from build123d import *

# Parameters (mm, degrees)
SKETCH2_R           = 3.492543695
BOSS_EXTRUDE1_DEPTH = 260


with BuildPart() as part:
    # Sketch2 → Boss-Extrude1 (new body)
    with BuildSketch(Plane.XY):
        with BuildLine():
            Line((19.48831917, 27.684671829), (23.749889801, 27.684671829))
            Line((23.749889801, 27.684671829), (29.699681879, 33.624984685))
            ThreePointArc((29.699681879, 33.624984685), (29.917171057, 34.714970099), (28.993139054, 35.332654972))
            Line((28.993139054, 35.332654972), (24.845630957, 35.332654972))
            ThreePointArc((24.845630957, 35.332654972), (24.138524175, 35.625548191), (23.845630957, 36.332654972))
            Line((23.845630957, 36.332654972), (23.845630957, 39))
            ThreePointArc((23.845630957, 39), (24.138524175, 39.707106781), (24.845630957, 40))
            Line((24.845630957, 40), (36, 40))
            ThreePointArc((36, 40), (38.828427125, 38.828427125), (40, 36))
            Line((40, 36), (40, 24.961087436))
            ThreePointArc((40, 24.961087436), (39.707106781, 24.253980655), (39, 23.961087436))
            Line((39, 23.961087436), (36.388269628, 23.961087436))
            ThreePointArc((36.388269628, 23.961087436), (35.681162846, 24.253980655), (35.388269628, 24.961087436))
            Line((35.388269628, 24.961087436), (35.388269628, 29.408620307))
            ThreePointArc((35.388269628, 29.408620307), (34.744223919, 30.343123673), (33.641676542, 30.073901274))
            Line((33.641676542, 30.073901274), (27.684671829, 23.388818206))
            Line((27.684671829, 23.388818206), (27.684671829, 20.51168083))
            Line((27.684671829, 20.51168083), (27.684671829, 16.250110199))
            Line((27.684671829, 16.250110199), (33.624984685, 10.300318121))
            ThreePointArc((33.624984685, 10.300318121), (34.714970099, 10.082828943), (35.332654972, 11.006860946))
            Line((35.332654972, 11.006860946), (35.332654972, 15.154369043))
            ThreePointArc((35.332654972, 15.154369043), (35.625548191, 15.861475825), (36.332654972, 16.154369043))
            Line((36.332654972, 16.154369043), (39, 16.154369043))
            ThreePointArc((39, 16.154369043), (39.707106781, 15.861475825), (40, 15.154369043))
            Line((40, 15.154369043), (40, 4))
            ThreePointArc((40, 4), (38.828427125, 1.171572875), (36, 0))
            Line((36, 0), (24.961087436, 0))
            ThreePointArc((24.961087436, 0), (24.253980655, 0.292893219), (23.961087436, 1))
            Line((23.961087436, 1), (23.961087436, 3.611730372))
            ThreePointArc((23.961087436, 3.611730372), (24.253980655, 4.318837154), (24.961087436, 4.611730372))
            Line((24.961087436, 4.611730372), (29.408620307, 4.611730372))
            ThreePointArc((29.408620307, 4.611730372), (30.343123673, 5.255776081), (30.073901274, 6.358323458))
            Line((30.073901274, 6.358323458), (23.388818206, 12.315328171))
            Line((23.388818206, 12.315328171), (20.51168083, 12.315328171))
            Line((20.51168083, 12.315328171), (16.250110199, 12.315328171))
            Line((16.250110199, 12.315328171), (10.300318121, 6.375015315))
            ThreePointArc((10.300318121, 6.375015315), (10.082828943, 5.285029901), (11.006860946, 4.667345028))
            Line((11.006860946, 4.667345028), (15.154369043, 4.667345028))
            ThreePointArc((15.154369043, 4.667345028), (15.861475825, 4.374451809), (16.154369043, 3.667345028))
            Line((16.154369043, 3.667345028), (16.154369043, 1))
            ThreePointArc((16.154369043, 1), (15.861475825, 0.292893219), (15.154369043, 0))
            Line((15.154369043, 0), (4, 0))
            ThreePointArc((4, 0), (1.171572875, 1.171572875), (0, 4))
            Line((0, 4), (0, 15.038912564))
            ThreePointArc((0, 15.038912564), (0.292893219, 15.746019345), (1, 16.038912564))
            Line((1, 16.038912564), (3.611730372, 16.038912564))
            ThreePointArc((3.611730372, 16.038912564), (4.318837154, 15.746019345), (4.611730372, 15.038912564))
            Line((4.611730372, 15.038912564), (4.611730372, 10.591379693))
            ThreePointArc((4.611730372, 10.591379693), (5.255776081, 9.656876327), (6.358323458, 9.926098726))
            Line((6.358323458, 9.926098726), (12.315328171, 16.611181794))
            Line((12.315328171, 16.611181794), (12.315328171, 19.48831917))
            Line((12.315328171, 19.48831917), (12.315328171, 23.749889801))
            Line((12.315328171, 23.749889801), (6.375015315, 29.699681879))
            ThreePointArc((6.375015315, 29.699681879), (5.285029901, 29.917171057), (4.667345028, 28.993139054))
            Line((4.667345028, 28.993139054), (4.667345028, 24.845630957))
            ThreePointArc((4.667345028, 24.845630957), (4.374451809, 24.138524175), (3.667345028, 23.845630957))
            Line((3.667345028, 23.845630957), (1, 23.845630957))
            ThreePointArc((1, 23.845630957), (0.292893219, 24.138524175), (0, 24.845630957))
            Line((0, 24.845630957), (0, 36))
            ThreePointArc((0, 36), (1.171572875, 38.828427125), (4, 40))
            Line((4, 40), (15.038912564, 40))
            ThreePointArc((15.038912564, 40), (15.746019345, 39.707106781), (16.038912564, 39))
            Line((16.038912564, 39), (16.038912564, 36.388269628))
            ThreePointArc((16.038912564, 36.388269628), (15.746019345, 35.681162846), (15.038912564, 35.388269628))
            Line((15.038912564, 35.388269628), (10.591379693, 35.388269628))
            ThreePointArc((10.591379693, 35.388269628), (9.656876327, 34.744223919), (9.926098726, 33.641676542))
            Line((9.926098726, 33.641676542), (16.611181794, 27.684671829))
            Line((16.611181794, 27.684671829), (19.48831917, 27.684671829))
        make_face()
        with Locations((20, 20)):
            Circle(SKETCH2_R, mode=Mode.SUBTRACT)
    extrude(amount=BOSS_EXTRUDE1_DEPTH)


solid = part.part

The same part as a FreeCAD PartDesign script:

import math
import FreeCAD as App
import Part
import Sketcher

doc = App.newDocument("Part")
params = doc.addObject("Spreadsheet::Sheet", "Params")
for row, (alias, value) in enumerate([
    ("sketch1_radius", "1 mm"),
    ("sketch1_radius2", "4 mm"),
    ("pad1_length", "260 mm"),
], start=1):
    params.set(f"A{row}", alias)
    params.set(f"B{row}", "=" + value)
    params.setAlias(f"B{row}", alias)

body = doc.addObject("PartDesign::Body", "Body")

# Sketch on XY plane
sketch1 = doc.addObject("Sketcher::SketchObject", "Sketch")
body.addObject(sketch1)
sketch1.AttachmentSupport = (doc.XY_Plane, [""])
sketch1.MapMode = "FlatFace"
sketch1.addGeometry(Part.LineSegment(App.Vector(29.7, 33.6, 0), App.Vector(23.7, 27.7, 0)), False)
sketch1.addGeometry(Part.LineSegment(App.Vector(23.7, 27.7, 0), App.Vector(16.6, 27.7, 0)), False)
sketch1.addGeometry(Part.LineSegment(App.Vector(16.6, 27.7, 0), App.Vector(9.9, 33.6, 0)), False)
sketch1.addGeometry(Part.ArcOfCircle(Part.Circle(App.Vector(10.6, 34.4, 0), App.Vector(0, 0, 1), 1), math.radians(90), math.radians(228)), False)
sketch1.addGeometry(Part.LineSegment(App.Vector(10.6, 35.4, 0), App.Vector(15, 35.4, 0)), False)
sketch1.addGeometry(Part.ArcOfCircle(Part.Circle(App.Vector(15, 36.4, 0), App.Vector(0, 0, 1), 1), math.radians(-90), math.radians(0)), False)
sketch1.addGeometry(Part.LineSegment(App.Vector(16, 36.4, 0), App.Vector(16, 39, 0)), False)
sketch1.addGeometry(Part.ArcOfCircle(Part.Circle(App.Vector(15, 39, 0), App.Vector(0, 0, 1), 1), math.radians(0), math.radians(90)), False)
sketch1.addGeometry(Part.LineSegment(App.Vector(15, 40, 0), App.Vector(4, 40, 0)), False)
sketch1.addGeometry(Part.ArcOfCircle(Part.Circle(App.Vector(4, 36, 0), App.Vector(0, 0, 1), 4), math.radians(90), math.radians(180)), False)
sketch1.addGeometry(Part.LineSegment(App.Vector(0, 36, 0), App.Vector(0, 24.8, 0)), False)
sketch1.addGeometry(Part.ArcOfCircle(Part.Circle(App.Vector(1, 24.8, 0), App.Vector(0, 0, 1), 1), math.radians(180), math.radians(270)), False)
sketch1.addGeometry(Part.LineSegment(App.Vector(1, 23.8, 0), App.Vector(3.7, 23.8, 0)), False)
sketch1.addGeometry(Part.ArcOfCircle(Part.Circle(App.Vector(3.7, 24.8, 0), App.Vector(0, 0, 1), 1), math.radians(-90), math.radians(0)), False)
sketch1.addGeometry(Part.LineSegment(App.Vector(4.7, 24.8, 0), App.Vector(4.7, 29, 0)), False)
sketch1.addGeometry(Part.ArcOfCircle(Part.Circle(App.Vector(5.7, 29, 0), App.Vector(0, 0, 1), 1), math.radians(45), math.radians(180)), False)
sketch1.addGeometry(Part.LineSegment(App.Vector(6.4, 29.7, 0), App.Vector(12.3, 23.7, 0)), False)
sketch1.addGeometry(Part.LineSegment(App.Vector(12.3, 23.7, 0), App.Vector(12.3, 16.6, 0)), False)
sketch1.addGeometry(Part.LineSegment(App.Vector(12.3, 16.6, 0), App.Vector(6.4, 9.9, 0)), False)
sketch1.addGeometry(Part.ArcOfCircle(Part.Circle(App.Vector(5.6, 10.6, 0), App.Vector(0, 0, 1), 1), math.radians(-180), math.radians(-42)), False)
sketch1.addGeometry(Part.LineSegment(App.Vector(4.6, 10.6, 0), App.Vector(4.6, 15, 0)), False)
sketch1.addGeometry(Part.ArcOfCircle(Part.Circle(App.Vector(3.6, 15, 0), App.Vector(0, 0, 1), 1), math.radians(0), math.radians(90)), False)
sketch1.addGeometry(Part.LineSegment(App.Vector(3.6, 16, 0), App.Vector(1, 16, 0)), False)
sketch1.addGeometry(Part.ArcOfCircle(Part.Circle(App.Vector(1, 15, 0), App.Vector(0, 0, 1), 1), math.radians(90), math.radians(180)), False)
sketch1.addGeometry(Part.LineSegment(App.Vector(0, 15, 0), App.Vector(0, 4, 0)), False)
sketch1.addGeometry(Part.ArcOfCircle(Part.Circle(App.Vector(4, 4, 0), App.Vector(0, 0, 1), 4), math.radians(180), math.radians(270)), False)
sketch1.addGeometry(Part.LineSegment(App.Vector(4, 0, 0), App.Vector(15.2, 0, 0)), False)
sketch1.addGeometry(Part.ArcOfCircle(Part.Circle(App.Vector(15.2, 1, 0), App.Vector(0, 0, 1), 1), math.radians(-90), math.radians(0)), False)
sketch1.addGeometry(Part.LineSegment(App.Vector(16.2, 1, 0), App.Vector(16.2, 3.7, 0)), False)
sketch1.addGeometry(Part.ArcOfCircle(Part.Circle(App.Vector(15.2, 3.7, 0), App.Vector(0, 0, 1), 1), math.radians(0), math.radians(90)), False)
sketch1.addGeometry(Part.LineSegment(App.Vector(15.2, 4.7, 0), App.Vector(11, 4.7, 0)), False)
sketch1.addGeometry(Part.ArcOfCircle(Part.Circle(App.Vector(11, 5.7, 0), App.Vector(0, 0, 1), 1), math.radians(135), math.radians(270)), False)
sketch1.addGeometry(Part.LineSegment(App.Vector(10.3, 6.4, 0), App.Vector(16.3, 12.3, 0)), False)
sketch1.addGeometry(Part.LineSegment(App.Vector(16.3, 12.3, 0), App.Vector(23.4, 12.3, 0)), False)
sketch1.addGeometry(Part.LineSegment(App.Vector(23.4, 12.3, 0), App.Vector(30.1, 6.4, 0)), False)
sketch1.addGeometry(Part.ArcOfCircle(Part.Circle(App.Vector(29.4, 5.6, 0), App.Vector(0, 0, 1), 1), math.radians(-90), math.radians(48)), False)
sketch1.addGeometry(Part.LineSegment(App.Vector(29.4, 4.6, 0), App.Vector(25, 4.6, 0)), False)
sketch1.addGeometry(Part.ArcOfCircle(Part.Circle(App.Vector(25, 3.6, 0), App.Vector(0, 0, 1), 1), math.radians(90), math.radians(180)), False)
sketch1.addGeometry(Part.LineSegment(App.Vector(24, 3.6, 0), App.Vector(24, 1, 0)), False)
sketch1.addGeometry(Part.ArcOfCircle(Part.Circle(App.Vector(25, 1, 0), App.Vector(0, 0, 1), 1), math.radians(-180), math.radians(-90)), False)
sketch1.addGeometry(Part.LineSegment(App.Vector(25, 0, 0), App.Vector(36, 0, 0)), False)
sketch1.addGeometry(Part.ArcOfCircle(Part.Circle(App.Vector(36, 4, 0), App.Vector(0, 0, 1), 4), math.radians(-90), math.radians(0)), False)
sketch1.addGeometry(Part.LineSegment(App.Vector(40, 4, 0), App.Vector(40, 15.2, 0)), False)
sketch1.addGeometry(Part.ArcOfCircle(Part.Circle(App.Vector(39, 15.2, 0), App.Vector(0, 0, 1), 1), math.radians(0), math.radians(90)), False)
sketch1.addGeometry(Part.LineSegment(App.Vector(39, 16.2, 0), App.Vector(36.3, 16.2, 0)), False)
sketch1.addGeometry(Part.ArcOfCircle(Part.Circle(App.Vector(36.3, 15.2, 0), App.Vector(0, 0, 1), 1), math.radians(90), math.radians(180)), False)
sketch1.addGeometry(Part.LineSegment(App.Vector(35.3, 15.2, 0), App.Vector(35.3, 11, 0)), False)
sketch1.addGeometry(Part.ArcOfCircle(Part.Circle(App.Vector(34.3, 11, 0), App.Vector(0, 0, 1), 1), math.radians(-135), math.radians(0)), False)
sketch1.addGeometry(Part.LineSegment(App.Vector(33.6, 10.3, 0), App.Vector(27.7, 16.3, 0)), False)
sketch1.addGeometry(Part.LineSegment(App.Vector(27.7, 16.3, 0), App.Vector(27.7, 23.4, 0)), False)
sketch1.addGeometry(Part.LineSegment(App.Vector(27.7, 23.4, 0), App.Vector(33.6, 30.1, 0)), False)
sketch1.addGeometry(Part.ArcOfCircle(Part.Circle(App.Vector(34.4, 29.4, 0), App.Vector(0, 0, 1), 1), math.radians(0), math.radians(138)), False)
sketch1.addGeometry(Part.LineSegment(App.Vector(35.4, 29.4, 0), App.Vector(35.4, 25, 0)), False)
sketch1.addGeometry(Part.ArcOfCircle(Part.Circle(App.Vector(36.4, 25, 0), App.Vector(0, 0, 1), 1), math.radians(180), math.radians(270)), False)
sketch1.addGeometry(Part.LineSegment(App.Vector(36.4, 24, 0), App.Vector(39, 24, 0)), False)
sketch1.addGeometry(Part.ArcOfCircle(Part.Circle(App.Vector(39, 25, 0), App.Vector(0, 0, 1), 1), math.radians(-90), math.radians(0)), False)
sketch1.addGeometry(Part.LineSegment(App.Vector(40, 25, 0), App.Vector(40, 36, 0)), False)
sketch1.addGeometry(Part.ArcOfCircle(Part.Circle(App.Vector(36, 36, 0), App.Vector(0, 0, 1), 4), math.radians(0), math.radians(90)), False)
sketch1.addGeometry(Part.LineSegment(App.Vector(36, 40, 0), App.Vector(24.8, 40, 0)), False)
sketch1.addGeometry(Part.ArcOfCircle(Part.Circle(App.Vector(24.8, 39, 0), App.Vector(0, 0, 1), 1), math.radians(90), math.radians(180)), False)
sketch1.addGeometry(Part.LineSegment(App.Vector(23.8, 39, 0), App.Vector(23.8, 36.3, 0)), False)
sketch1.addGeometry(Part.ArcOfCircle(Part.Circle(App.Vector(24.8, 36.3, 0), App.Vector(0, 0, 1), 1), math.radians(180), math.radians(270)), False)
sketch1.addGeometry(Part.LineSegment(App.Vector(24.8, 35.3, 0), App.Vector(29, 35.3, 0)), False)
sketch1.addGeometry(Part.ArcOfCircle(Part.Circle(App.Vector(29, 34.3, 0), App.Vector(0, 0, 1), 1), math.radians(-45), math.radians(90)), False)
sketch1.addGeometry(Part.Circle(App.Vector(20, 20, 0), App.Vector(0, 0, 1), 3.5), False)
sketch1.addConstraint(Sketcher.Constraint("Coincident", 0, 2, 1, 1))
sketch1.addConstraint(Sketcher.Constraint("Coincident", 1, 2, 2, 1))
sketch1.addConstraint(Sketcher.Constraint("Tangent", 2, 2, 3, 2))
sketch1.addConstraint(Sketcher.Constraint("Tangent", 3, 1, 4, 1))
sketch1.addConstraint(Sketcher.Constraint("Tangent", 4, 2, 5, 1))
sketch1.addConstraint(Sketcher.Constraint("Tangent", 5, 2, 6, 1))
sketch1.addConstraint(Sketcher.Constraint("Tangent", 6, 2, 7, 1))
sketch1.addConstraint(Sketcher.Constraint("Tangent", 7, 2, 8, 1))
sketch1.addConstraint(Sketcher.Constraint("Tangent", 8, 2, 9, 1))
sketch1.addConstraint(Sketcher.Constraint("Tangent", 9, 2, 10, 1))
sketch1.addConstraint(Sketcher.Constraint("Tangent", 10, 2, 11, 1))
sketch1.addConstraint(Sketcher.Constraint("Tangent", 11, 2, 12, 1))
sketch1.addConstraint(Sketcher.Constraint("Tangent", 12, 2, 13, 1))
sketch1.addConstraint(Sketcher.Constraint("Tangent", 13, 2, 14, 1))
sketch1.addConstraint(Sketcher.Constraint("Tangent", 14, 2, 15, 2))
sketch1.addConstraint(Sketcher.Constraint("Tangent", 15, 1, 16, 1))
sketch1.addConstraint(Sketcher.Constraint("Coincident", 16, 2, 17, 1))
sketch1.addConstraint(Sketcher.Constraint("Coincident", 17, 2, 18, 1))
sketch1.addConstraint(Sketcher.Constraint("Tangent", 18, 2, 19, 2))
sketch1.addConstraint(Sketcher.Constraint("Tangent", 19, 1, 20, 1))
sketch1.addConstraint(Sketcher.Constraint("Tangent", 20, 2, 21, 1))
sketch1.addConstraint(Sketcher.Constraint("Tangent", 21, 2, 22, 1))
sketch1.addConstraint(Sketcher.Constraint("Tangent", 22, 2, 23, 1))
sketch1.addConstraint(Sketcher.Constraint("Tangent", 23, 2, 24, 1))
sketch1.addConstraint(Sketcher.Constraint("Tangent", 24, 2, 25, 1))
sketch1.addConstraint(Sketcher.Constraint("Tangent", 25, 2, 26, 1))
sketch1.addConstraint(Sketcher.Constraint("Tangent", 26, 2, 27, 1))
sketch1.addConstraint(Sketcher.Constraint("Tangent", 27, 2, 28, 1))
sketch1.addConstraint(Sketcher.Constraint("Tangent", 28, 2, 29, 1))
sketch1.addConstraint(Sketcher.Constraint("Tangent", 29, 2, 30, 1))
sketch1.addConstraint(Sketcher.Constraint("Tangent", 30, 2, 31, 2))
sketch1.addConstraint(Sketcher.Constraint("Tangent", 31, 1, 32, 1))
sketch1.addConstraint(Sketcher.Constraint("Coincident", 32, 2, 33, 1))
sketch1.addConstraint(Sketcher.Constraint("Coincident", 33, 2, 34, 1))
sketch1.addConstraint(Sketcher.Constraint("Tangent", 34, 2, 35, 2))
sketch1.addConstraint(Sketcher.Constraint("Tangent", 35, 1, 36, 1))
sketch1.addConstraint(Sketcher.Constraint("Tangent", 36, 2, 37, 1))
sketch1.addConstraint(Sketcher.Constraint("Tangent", 37, 2, 38, 1))
sketch1.addConstraint(Sketcher.Constraint("Tangent", 38, 2, 39, 1))
sketch1.addConstraint(Sketcher.Constraint("Tangent", 39, 2, 40, 1))
sketch1.addConstraint(Sketcher.Constraint("Tangent", 40, 2, 41, 1))
sketch1.addConstraint(Sketcher.Constraint("Tangent", 41, 2, 42, 1))
sketch1.addConstraint(Sketcher.Constraint("Tangent", 42, 2, 43, 1))
sketch1.addConstraint(Sketcher.Constraint("Tangent", 43, 2, 44, 1))
sketch1.addConstraint(Sketcher.Constraint("Tangent", 44, 2, 45, 1))
sketch1.addConstraint(Sketcher.Constraint("Tangent", 45, 2, 46, 1))
sketch1.addConstraint(Sketcher.Constraint("Tangent", 46, 2, 47, 2))
sketch1.addConstraint(Sketcher.Constraint("Tangent", 47, 1, 48, 1))
sketch1.addConstraint(Sketcher.Constraint("Coincident", 48, 2, 49, 1))
sketch1.addConstraint(Sketcher.Constraint("Coincident", 49, 2, 50, 1))
sketch1.addConstraint(Sketcher.Constraint("Tangent", 50, 2, 51, 2))
sketch1.addConstraint(Sketcher.Constraint("Tangent", 51, 1, 52, 1))
sketch1.addConstraint(Sketcher.Constraint("Tangent", 52, 2, 53, 1))
sketch1.addConstraint(Sketcher.Constraint("Tangent", 53, 2, 54, 1))
sketch1.addConstraint(Sketcher.Constraint("Tangent", 54, 2, 55, 1))
sketch1.addConstraint(Sketcher.Constraint("Tangent", 55, 2, 56, 1))
sketch1.addConstraint(Sketcher.Constraint("Tangent", 56, 2, 57, 1))
sketch1.addConstraint(Sketcher.Constraint("Tangent", 57, 2, 58, 1))
sketch1.addConstraint(Sketcher.Constraint("Tangent", 58, 2, 59, 1))
sketch1.addConstraint(Sketcher.Constraint("Tangent", 59, 2, 60, 1))
sketch1.addConstraint(Sketcher.Constraint("Tangent", 60, 2, 61, 1))
sketch1.addConstraint(Sketcher.Constraint("Tangent", 61, 2, 62, 1))
sketch1.addConstraint(Sketcher.Constraint("Tangent", 62, 2, 63, 2))
sketch1.addConstraint(Sketcher.Constraint("Tangent", 63, 1, 0, 1))
sketch1.addConstraint(Sketcher.Constraint("Horizontal", 1))
sketch1.addConstraint(Sketcher.Constraint("Horizontal", 4))
sketch1.addConstraint(Sketcher.Constraint("Vertical", 6))
sketch1.addConstraint(Sketcher.Constraint("Horizontal", 8))
sketch1.addConstraint(Sketcher.Constraint("Vertical", 10))
sketch1.addConstraint(Sketcher.Constraint("Horizontal", 12))
sketch1.addConstraint(Sketcher.Constraint("Vertical", 14))
sketch1.addConstraint(Sketcher.Constraint("Vertical", 17))
sketch1.addConstraint(Sketcher.Constraint("Vertical", 20))
sketch1.addConstraint(Sketcher.Constraint("Horizontal", 22))
sketch1.addConstraint(Sketcher.Constraint("Vertical", 24))
sketch1.addConstraint(Sketcher.Constraint("Horizontal", 26))
sketch1.addConstraint(Sketcher.Constraint("Vertical", 28))
sketch1.addConstraint(Sketcher.Constraint("Horizontal", 30))
sketch1.addConstraint(Sketcher.Constraint("Horizontal", 33))
sketch1.addConstraint(Sketcher.Constraint("Horizontal", 36))
sketch1.addConstraint(Sketcher.Constraint("Vertical", 38))
sketch1.addConstraint(Sketcher.Constraint("Horizontal", 40))
sketch1.addConstraint(Sketcher.Constraint("Vertical", 42))
sketch1.addConstraint(Sketcher.Constraint("Horizontal", 44))
sketch1.addConstraint(Sketcher.Constraint("Vertical", 46))
sketch1.addConstraint(Sketcher.Constraint("Vertical", 49))
sketch1.addConstraint(Sketcher.Constraint("Vertical", 52))
sketch1.addConstraint(Sketcher.Constraint("Horizontal", 54))
sketch1.addConstraint(Sketcher.Constraint("Vertical", 56))
sketch1.addConstraint(Sketcher.Constraint("Horizontal", 58))
sketch1.addConstraint(Sketcher.Constraint("Vertical", 60))
sketch1.addConstraint(Sketcher.Constraint("Horizontal", 62))
sketch1.addConstraint(Sketcher.Constraint("Equal", 3, 5))
sketch1.addConstraint(Sketcher.Constraint("Equal", 5, 7))
sketch1.addConstraint(Sketcher.Constraint("Equal", 7, 11))
sketch1.addConstraint(Sketcher.Constraint("Equal", 11, 13))
sketch1.addConstraint(Sketcher.Constraint("Equal", 13, 15))
sketch1.addConstraint(Sketcher.Constraint("Equal", 15, 19))
sketch1.addConstraint(Sketcher.Constraint("Equal", 19, 21))
sketch1.addConstraint(Sketcher.Constraint("Equal", 21, 23))
sketch1.addConstraint(Sketcher.Constraint("Equal", 9, 25))
sketch1.addConstraint(Sketcher.Constraint("Equal", 23, 27))
sketch1.addConstraint(Sketcher.Constraint("Equal", 27, 29))
sketch1.addConstraint(Sketcher.Constraint("Equal", 29, 31))
sketch1.addConstraint(Sketcher.Constraint("Equal", 31, 35))
sketch1.addConstraint(Sketcher.Constraint("Equal", 35, 37))
sketch1.addConstraint(Sketcher.Constraint("Equal", 37, 39))
sketch1.addConstraint(Sketcher.Constraint("Equal", 25, 41))
sketch1.addConstraint(Sketcher.Constraint("Equal", 39, 43))
sketch1.addConstraint(Sketcher.Constraint("Equal", 43, 45))
sketch1.addConstraint(Sketcher.Constraint("Equal", 45, 47))
sketch1.addConstraint(Sketcher.Constraint("Equal", 47, 51))
sketch1.addConstraint(Sketcher.Constraint("Equal", 51, 53))
sketch1.addConstraint(Sketcher.Constraint("Equal", 53, 55))
sketch1.addConstraint(Sketcher.Constraint("Equal", 41, 57))
sketch1.addConstraint(Sketcher.Constraint("Equal", 55, 59))
sketch1.addConstraint(Sketcher.Constraint("Equal", 59, 61))
sketch1.addConstraint(Sketcher.Constraint("Equal", 61, 63))
sketch1.addConstraint(Sketcher.Constraint("PointOnObject", 9, 2, -2))
sketch1.addConstraint(Sketcher.Constraint("PointOnObject", 23, 2, -2))
sketch1.addConstraint(Sketcher.Constraint("PointOnObject", 25, 2, -1))
sketch1.addConstraint(Sketcher.Constraint("PointOnObject", 39, 2, -1))
sketch1.addConstraint(Sketcher.Constraint("Perpendicular", 0, 16))
sketch1.addConstraint(Sketcher.Constraint("Perpendicular", 2, 18))
sketch1.addConstraint(Sketcher.Constraint("Perpendicular", 16, 32))
sketch1.addConstraint(Sketcher.Constraint("Perpendicular", 18, 34))
sketch1.addConstraint(Sketcher.Constraint("Perpendicular", 32, 48))
sketch1.addConstraint(Sketcher.Constraint("Perpendicular", 34, 50))
sketch1.addConstraint(Sketcher.Constraint("Horizontal", 9, 3, 57, 3))
sketch1.addConstraint(Sketcher.Constraint("Vertical", 43, 3, 55, 3))
sketch1.addConstraint(Sketcher.Constraint("Equal", 1, 33))
sketch1.addConstraint(Sketcher.Constraint("Equal", 4, 36))
sketch1.addConstraint(Sketcher.Constraint("Equal", 8, 40))
sketch1.addConstraint(Sketcher.Constraint("Equal", 12, 44))
sketch1.addConstraint(Sketcher.Constraint("Equal", 22, 54))
sketch1.addConstraint(Sketcher.Constraint("Equal", 26, 58))
sketch1.addConstraint(Sketcher.Constraint("Equal", 30, 62))
sketch1.addConstraint(Sketcher.Constraint("Equal", 54, 6))
sketch1.addConstraint(Sketcher.Constraint("Equal", 58, 10))
sketch1.addConstraint(Sketcher.Constraint("Equal", 62, 14))
sketch1.addConstraint(Sketcher.Constraint("Equal", 33, 17))
sketch1.addConstraint(Sketcher.Constraint("Equal", 36, 20))
sketch1.addConstraint(Sketcher.Constraint("Equal", 40, 24))
sketch1.addConstraint(Sketcher.Constraint("Equal", 44, 28))
sketch1.addConstraint(Sketcher.Constraint("Equal", 6, 38))
sketch1.addConstraint(Sketcher.Constraint("Equal", 10, 42))
sketch1.addConstraint(Sketcher.Constraint("Equal", 14, 46))
sketch1.addConstraint(Sketcher.Constraint("Equal", 17, 49))
sketch1.addConstraint(Sketcher.Constraint("Equal", 20, 52))
sketch1.addConstraint(Sketcher.Constraint("Equal", 24, 56))
sketch1.addConstraint(Sketcher.Constraint("Equal", 28, 60))
sketch1.addConstraint(Sketcher.Constraint("Equal", 0, 16))
sketch1.addConstraint(Sketcher.Constraint("Radius", 3, 1.0))
sketch1.addConstraint(Sketcher.Constraint("Radius", 9, 4.0))
sketch1.addConstraint(Sketcher.Constraint("DistanceY", -1, 1, 7, 3, 39.0))
sketch1.addConstraint(Sketcher.Constraint("DistanceX", -1, 1, 64, 3, 20.0))
sketch1.addConstraint(Sketcher.Constraint("DistanceY", -1, 1, 64, 3, 20.0))
sketch1.addConstraint(Sketcher.Constraint("Diameter", 64, 6.985087))
sketch1.addConstraint(Sketcher.Constraint("DistanceX", 1, 2, 1, 1, 7.138708))
sketch1.addConstraint(Sketcher.Constraint("DistanceX", 22, 2, 22, 1, 2.61173))
sketch1.addConstraint(Sketcher.Constraint("DistanceX", 26, 1, 26, 2, 11.154369))
sketch1.addConstraint(Sketcher.Constraint("DistanceX", 30, 2, 30, 1, 4.147508))
sketch1.addConstraint(Sketcher.Constraint("DistanceX", -1, 1, 2, 2, 9.926099))
sketch1.addConstraint(Sketcher.Constraint("Distance", 2, 8.954119))
sketch1.addConstraint(Sketcher.Constraint("DistanceX", 4, 1, 4, 2, 4.447533))
sketch1.addConstraint(Sketcher.Constraint("DistanceX", 8, 2, 8, 1, 11.038913))
sketch1.addConstraint(Sketcher.Constraint("DistanceX", 12, 1, 12, 2, 2.667345))
sketch1.setExpression("Constraints[152]", "Params.sketch1_radius")
sketch1.setExpression("Constraints[153]", "Params.sketch1_radius2")
pad1 = doc.addObject("PartDesign::Pad", "Pad")
body.addObject(pad1)
pad1.Profile = sketch1
pad1.setExpression("Length", "Params.pad1_length")

doc.recompute()
